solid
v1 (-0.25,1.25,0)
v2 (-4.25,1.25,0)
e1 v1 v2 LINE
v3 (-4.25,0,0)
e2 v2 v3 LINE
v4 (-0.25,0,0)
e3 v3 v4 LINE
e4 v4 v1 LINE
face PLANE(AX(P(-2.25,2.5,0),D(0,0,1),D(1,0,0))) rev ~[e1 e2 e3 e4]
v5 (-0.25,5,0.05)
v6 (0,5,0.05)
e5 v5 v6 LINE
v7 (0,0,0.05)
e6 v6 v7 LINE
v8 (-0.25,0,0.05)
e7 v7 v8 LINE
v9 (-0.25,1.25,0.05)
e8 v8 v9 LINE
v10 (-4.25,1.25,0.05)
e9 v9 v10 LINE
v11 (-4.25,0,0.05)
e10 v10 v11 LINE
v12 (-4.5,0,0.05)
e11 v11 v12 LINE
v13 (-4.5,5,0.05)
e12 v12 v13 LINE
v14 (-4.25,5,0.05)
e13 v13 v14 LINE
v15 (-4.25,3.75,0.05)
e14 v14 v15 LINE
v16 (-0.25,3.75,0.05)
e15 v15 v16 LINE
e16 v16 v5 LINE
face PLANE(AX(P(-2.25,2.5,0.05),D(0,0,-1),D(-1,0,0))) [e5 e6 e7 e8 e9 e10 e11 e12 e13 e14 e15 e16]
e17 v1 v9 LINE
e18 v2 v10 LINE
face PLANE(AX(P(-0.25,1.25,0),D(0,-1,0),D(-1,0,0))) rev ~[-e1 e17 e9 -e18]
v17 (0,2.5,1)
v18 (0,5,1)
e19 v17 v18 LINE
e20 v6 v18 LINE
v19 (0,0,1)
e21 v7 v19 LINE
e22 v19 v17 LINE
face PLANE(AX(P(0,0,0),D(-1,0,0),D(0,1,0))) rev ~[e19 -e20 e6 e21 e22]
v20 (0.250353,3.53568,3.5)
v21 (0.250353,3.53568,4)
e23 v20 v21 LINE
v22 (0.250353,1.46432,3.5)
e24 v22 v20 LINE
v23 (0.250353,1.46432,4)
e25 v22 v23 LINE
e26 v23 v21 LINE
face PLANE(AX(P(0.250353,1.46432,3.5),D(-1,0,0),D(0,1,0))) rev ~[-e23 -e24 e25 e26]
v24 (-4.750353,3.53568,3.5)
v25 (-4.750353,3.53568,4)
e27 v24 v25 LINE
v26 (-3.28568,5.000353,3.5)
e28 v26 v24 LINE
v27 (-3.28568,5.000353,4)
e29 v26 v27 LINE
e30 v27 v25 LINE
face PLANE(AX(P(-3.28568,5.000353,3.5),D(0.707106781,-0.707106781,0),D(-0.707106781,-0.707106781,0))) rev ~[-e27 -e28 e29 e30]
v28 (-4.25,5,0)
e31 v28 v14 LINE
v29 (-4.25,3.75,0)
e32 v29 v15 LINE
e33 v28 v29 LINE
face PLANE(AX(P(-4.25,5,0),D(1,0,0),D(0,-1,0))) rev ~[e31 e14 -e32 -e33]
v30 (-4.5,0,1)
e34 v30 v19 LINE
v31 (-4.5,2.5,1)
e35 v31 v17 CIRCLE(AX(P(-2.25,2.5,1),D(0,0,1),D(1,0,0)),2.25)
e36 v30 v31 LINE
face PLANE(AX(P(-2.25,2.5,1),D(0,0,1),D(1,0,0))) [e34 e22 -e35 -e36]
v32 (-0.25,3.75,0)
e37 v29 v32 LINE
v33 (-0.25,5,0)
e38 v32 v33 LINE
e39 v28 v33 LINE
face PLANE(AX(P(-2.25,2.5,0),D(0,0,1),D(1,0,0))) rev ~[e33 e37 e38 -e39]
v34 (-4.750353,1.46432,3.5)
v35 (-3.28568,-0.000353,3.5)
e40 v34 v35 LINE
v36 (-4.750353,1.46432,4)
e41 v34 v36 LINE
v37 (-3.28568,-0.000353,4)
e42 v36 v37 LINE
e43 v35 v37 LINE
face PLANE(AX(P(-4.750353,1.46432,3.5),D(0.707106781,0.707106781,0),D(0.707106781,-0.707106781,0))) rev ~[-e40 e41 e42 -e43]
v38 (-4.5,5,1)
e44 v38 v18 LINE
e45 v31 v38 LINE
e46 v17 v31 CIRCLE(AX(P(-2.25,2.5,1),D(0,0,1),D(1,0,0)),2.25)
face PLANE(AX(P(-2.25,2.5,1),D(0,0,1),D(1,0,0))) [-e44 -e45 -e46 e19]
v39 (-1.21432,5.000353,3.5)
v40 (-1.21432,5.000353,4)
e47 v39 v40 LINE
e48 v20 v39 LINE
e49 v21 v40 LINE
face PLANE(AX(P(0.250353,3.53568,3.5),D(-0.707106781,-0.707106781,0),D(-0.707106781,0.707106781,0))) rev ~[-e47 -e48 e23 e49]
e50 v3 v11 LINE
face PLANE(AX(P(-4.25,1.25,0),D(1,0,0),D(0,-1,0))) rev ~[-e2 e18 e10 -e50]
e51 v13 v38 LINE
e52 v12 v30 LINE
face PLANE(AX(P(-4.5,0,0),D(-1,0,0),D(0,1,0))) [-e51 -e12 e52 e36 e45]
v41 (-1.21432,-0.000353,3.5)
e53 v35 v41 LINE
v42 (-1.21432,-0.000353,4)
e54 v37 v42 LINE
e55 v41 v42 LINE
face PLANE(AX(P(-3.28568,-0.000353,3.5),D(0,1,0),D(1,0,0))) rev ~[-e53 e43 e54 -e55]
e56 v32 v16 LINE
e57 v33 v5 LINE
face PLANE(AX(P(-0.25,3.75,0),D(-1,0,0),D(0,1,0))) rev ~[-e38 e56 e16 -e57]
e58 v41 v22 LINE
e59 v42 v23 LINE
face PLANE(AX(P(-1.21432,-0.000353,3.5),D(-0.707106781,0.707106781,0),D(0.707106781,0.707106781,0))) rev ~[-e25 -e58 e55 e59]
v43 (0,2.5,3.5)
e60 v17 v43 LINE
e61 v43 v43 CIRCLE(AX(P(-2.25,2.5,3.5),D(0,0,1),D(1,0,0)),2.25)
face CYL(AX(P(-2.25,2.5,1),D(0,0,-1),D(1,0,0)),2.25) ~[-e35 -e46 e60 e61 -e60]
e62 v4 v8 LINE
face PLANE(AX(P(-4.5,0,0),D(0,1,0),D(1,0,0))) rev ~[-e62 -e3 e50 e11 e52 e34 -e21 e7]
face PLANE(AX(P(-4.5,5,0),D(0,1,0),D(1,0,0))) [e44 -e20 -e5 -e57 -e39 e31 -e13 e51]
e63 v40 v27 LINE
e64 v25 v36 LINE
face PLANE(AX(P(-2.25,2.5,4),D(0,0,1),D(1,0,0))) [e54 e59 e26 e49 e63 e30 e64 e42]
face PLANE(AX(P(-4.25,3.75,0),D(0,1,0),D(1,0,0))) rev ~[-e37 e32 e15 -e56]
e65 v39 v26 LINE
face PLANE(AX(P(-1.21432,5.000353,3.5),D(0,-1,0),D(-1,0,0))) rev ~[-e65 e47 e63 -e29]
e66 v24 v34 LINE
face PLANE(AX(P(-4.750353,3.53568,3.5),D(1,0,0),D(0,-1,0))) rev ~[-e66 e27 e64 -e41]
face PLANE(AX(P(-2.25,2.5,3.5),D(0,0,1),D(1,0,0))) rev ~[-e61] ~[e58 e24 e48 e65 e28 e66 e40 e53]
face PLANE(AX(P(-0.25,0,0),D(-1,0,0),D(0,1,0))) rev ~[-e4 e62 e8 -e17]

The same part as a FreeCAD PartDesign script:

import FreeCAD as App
import Part
import Sketcher
from FreeCAD import Vector
Q = App.Units.Quantity


def add_polygon(sketch, points):
    """Adds a closed chain of lines whose ends are joined by coincident constraints."""
    first, n = sketch.GeometryCount, len(points)
    for a, b in zip(points, points[1:] + points[:1]):
        sketch.addGeometry(Part.LineSegment(App.Vector(*a, 0), App.Vector(*b, 0)), False)
    for i in range(n):
        sketch.addConstraint(Sketcher.Constraint("Coincident", first + i, 2, first + (i + 1) % n, 1))

doc = App.newDocument("Part")
body = doc.addObject("PartDesign::Body", "Body")

# Sketch on XY plane
sketch1 = body.newObject("Sketcher::SketchObject", "Sketch")
sketch1.AttachmentSupport = (doc.getObject("XY_Plane"), [""])
sketch1.MapMode = "FlatFace"
add_polygon(sketch1, [(-4.5, 5), (-4.5, 0), (0, 0), (0, 5)])  # lines 0-3
sketch1.addConstraint([
    Sketcher.Constraint("Vertical", 0),
    Sketcher.Constraint("Horizontal", 1),
    Sketcher.Constraint("Vertical", 2),
    Sketcher.Constraint("Horizontal", 3),
    Sketcher.Constraint("Coincident", 1, 2, -1, 1),
    Sketcher.Constraint("DistanceY", 0, 2, 0, 1, Q("5 mm")),
    Sketcher.Constraint("DistanceX", 1, 1, 1, 2, Q("4.5 mm")),
])
pad1 = body.newObject("PartDesign::Pad", "Pad")
pad1.Profile = sketch1
pad1.Length = 1

# Sketch on XY plane
sketch2 = body.newObject("Sketcher::SketchObject", "Sketch001")
sketch2.AttachmentSupport = (doc.getObject("XY_Plane"), [""])
sketch2.MapMode = "FlatFace"
sketch2.AttachmentOffset = App.Placement(Vector(0, 0, 1), App.Rotation())
sketch2.addGeometry(Part.Circle(Vector(-2.2, 2.5, 0), Vector(0, 0, 1), 2.2), False)
sketch2.addConstraint([
    Sketcher.Constraint("Diameter", 0, Q("4.5 mm")),
    Sketcher.Constraint("DistanceY", -1, 1, 0, 3, Q("2.5 mm")),
    Sketcher.Constraint("DistanceX", 0, 3, -1, 1, Q("2.25 mm")),
])
pad2 = body.newObject("PartDesign::Pad", "Pad001")
pad2.Profile = sketch2
pad2.Length = 2.5

# Sketch on XY plane
sketch3 = body.newObject("Sketcher::SketchObject", "Sketch002")
sketch3.AttachmentSupport = (doc.getObject("XY_Plane"), [""])
sketch3.MapMode = "FlatFace"
sketch3.AttachmentOffset = App.Placement(Vector(0, 0, 3.5), App.Rotation())
add_polygon(sketch3, [(-1.2, 5), (-3.3, 5), (-4.8, 3.5), (-4.8, 1.5), (-3.3, 0), (-1.2, 0), (0.3, 1.5), (0.3, 3.5)])  # lines 0-7
sketch3.addConstraint([
    Sketcher.Constraint("Horizontal", 0),
    Sketcher.Constraint("Vertical", 2),
    Sketcher.Constraint("Horizontal", 4),
    Sketcher.Constraint("Vertical", 6),
    Sketcher.Constraint("Perpendicular", 1, 3),
    Sketcher.Constraint("Perpendicular", 3, 5),
    Sketcher.Constraint("Perpendicular", 5, 7),
    Sketcher.Constraint("Horizontal", 2, 2, 5, 2),
    Sketcher.Constraint("Horizontal", 1, 2, 6, 2),
    Sketcher.Constraint("Vertical", 0, 2, 3, 2),
    Sketcher.Constraint("Vertical", 4, 2, 7, 2),
    Sketcher.Constraint("Equal", 4, 2),
    Sketcher.Constraint("DistanceX", 0, 2, 0, 1, Q("2.07136 mm")),
    Sketcher.Constraint("Distance", 1, Q("2.07136 mm")),
    Sketcher.Constraint("DistanceX", 0, 2, -1, 1, Q("3.28568 mm")),
    Sketcher.Constraint("DistanceY", -1, 1, 1, 2, Q("3.53568 mm")),
])
pad3 = body.newObject("PartDesign::Pad", "Pad002")
pad3.Profile = sketch3
pad3.Length = 0.5

# Sketch on XY plane
sketch4 = body.newObject("Sketcher::SketchObject", "Sketch003")
sketch4.AttachmentSupport = (doc.getObject("XY_Plane"), [""])
sketch4.MapMode = "FlatFace"
add_polygon(sketch4, [(-0.25, 5), (0, 5), (0, 0), (-0.25, 0), (-0.25, 1.25), (-4.25, 1.25), (-4.25, 0), (-4.5, 0), (-4.5, 5), (-4.25, 5), (-4.25, 3.75), (-0.25, 3.75)])  # lines 0-11
sketch4.addConstraint([
    Sketcher.Constraint("Horizontal", 0),
    Sketcher.Constraint("Vertical", 1),
    Sketcher.Constraint("Horizontal", 2),
    Sketcher.Constraint("Vertical", 3),
    Sketcher.Constraint("Horizontal", 4),
    Sketcher.Constraint("Vertical", 5),
    Sketcher.Constraint("Horizontal", 6),
    Sketcher.Constraint("Vertical", 7),
    Sketcher.Constraint("Horizontal", 8),
    Sketcher.Constraint("Vertical", 9),
    Sketcher.Constraint("Horizontal", 10),
    Sketcher.Constraint("Vertical", 11),
    Sketcher.Constraint("Coincident", 1, 2, -1, 1),
    Sketcher.Constraint("PointOnObject", 5, 2, -1),
    Sketcher.Constraint("Horizontal", 0, 2, 7, 2),
    Sketcher.Constraint("Vertical", 5, 2, 8, 2),
    Sketcher.Constraint("Vertical", 3, 2, 10, 2),
    Sketcher.Constraint("Equal", 2, 6),
    Sketcher.Constraint("Equal", 5, 9),
    Sketcher.Constraint("DistanceX", 4, 2, 4, 1, Q("4 mm")),
    Sketcher.Constraint("DistanceY", 1, 2, 1, 1, Q("5 mm")),
    Sketcher.Constraint("DistanceX", 0, 1, 0, 2, Q("0.25 mm")),
    Sketcher.Constraint("DistanceY", 3, 1, 3, 2, Q("1.25 mm")),
])
pocket1 = body.newObject("PartDesign::Pocket", "Pocket")
pocket1.Profile = sketch4
pocket1.Length = 0.05
pocket1.Reversed = True

doc.recompute()
